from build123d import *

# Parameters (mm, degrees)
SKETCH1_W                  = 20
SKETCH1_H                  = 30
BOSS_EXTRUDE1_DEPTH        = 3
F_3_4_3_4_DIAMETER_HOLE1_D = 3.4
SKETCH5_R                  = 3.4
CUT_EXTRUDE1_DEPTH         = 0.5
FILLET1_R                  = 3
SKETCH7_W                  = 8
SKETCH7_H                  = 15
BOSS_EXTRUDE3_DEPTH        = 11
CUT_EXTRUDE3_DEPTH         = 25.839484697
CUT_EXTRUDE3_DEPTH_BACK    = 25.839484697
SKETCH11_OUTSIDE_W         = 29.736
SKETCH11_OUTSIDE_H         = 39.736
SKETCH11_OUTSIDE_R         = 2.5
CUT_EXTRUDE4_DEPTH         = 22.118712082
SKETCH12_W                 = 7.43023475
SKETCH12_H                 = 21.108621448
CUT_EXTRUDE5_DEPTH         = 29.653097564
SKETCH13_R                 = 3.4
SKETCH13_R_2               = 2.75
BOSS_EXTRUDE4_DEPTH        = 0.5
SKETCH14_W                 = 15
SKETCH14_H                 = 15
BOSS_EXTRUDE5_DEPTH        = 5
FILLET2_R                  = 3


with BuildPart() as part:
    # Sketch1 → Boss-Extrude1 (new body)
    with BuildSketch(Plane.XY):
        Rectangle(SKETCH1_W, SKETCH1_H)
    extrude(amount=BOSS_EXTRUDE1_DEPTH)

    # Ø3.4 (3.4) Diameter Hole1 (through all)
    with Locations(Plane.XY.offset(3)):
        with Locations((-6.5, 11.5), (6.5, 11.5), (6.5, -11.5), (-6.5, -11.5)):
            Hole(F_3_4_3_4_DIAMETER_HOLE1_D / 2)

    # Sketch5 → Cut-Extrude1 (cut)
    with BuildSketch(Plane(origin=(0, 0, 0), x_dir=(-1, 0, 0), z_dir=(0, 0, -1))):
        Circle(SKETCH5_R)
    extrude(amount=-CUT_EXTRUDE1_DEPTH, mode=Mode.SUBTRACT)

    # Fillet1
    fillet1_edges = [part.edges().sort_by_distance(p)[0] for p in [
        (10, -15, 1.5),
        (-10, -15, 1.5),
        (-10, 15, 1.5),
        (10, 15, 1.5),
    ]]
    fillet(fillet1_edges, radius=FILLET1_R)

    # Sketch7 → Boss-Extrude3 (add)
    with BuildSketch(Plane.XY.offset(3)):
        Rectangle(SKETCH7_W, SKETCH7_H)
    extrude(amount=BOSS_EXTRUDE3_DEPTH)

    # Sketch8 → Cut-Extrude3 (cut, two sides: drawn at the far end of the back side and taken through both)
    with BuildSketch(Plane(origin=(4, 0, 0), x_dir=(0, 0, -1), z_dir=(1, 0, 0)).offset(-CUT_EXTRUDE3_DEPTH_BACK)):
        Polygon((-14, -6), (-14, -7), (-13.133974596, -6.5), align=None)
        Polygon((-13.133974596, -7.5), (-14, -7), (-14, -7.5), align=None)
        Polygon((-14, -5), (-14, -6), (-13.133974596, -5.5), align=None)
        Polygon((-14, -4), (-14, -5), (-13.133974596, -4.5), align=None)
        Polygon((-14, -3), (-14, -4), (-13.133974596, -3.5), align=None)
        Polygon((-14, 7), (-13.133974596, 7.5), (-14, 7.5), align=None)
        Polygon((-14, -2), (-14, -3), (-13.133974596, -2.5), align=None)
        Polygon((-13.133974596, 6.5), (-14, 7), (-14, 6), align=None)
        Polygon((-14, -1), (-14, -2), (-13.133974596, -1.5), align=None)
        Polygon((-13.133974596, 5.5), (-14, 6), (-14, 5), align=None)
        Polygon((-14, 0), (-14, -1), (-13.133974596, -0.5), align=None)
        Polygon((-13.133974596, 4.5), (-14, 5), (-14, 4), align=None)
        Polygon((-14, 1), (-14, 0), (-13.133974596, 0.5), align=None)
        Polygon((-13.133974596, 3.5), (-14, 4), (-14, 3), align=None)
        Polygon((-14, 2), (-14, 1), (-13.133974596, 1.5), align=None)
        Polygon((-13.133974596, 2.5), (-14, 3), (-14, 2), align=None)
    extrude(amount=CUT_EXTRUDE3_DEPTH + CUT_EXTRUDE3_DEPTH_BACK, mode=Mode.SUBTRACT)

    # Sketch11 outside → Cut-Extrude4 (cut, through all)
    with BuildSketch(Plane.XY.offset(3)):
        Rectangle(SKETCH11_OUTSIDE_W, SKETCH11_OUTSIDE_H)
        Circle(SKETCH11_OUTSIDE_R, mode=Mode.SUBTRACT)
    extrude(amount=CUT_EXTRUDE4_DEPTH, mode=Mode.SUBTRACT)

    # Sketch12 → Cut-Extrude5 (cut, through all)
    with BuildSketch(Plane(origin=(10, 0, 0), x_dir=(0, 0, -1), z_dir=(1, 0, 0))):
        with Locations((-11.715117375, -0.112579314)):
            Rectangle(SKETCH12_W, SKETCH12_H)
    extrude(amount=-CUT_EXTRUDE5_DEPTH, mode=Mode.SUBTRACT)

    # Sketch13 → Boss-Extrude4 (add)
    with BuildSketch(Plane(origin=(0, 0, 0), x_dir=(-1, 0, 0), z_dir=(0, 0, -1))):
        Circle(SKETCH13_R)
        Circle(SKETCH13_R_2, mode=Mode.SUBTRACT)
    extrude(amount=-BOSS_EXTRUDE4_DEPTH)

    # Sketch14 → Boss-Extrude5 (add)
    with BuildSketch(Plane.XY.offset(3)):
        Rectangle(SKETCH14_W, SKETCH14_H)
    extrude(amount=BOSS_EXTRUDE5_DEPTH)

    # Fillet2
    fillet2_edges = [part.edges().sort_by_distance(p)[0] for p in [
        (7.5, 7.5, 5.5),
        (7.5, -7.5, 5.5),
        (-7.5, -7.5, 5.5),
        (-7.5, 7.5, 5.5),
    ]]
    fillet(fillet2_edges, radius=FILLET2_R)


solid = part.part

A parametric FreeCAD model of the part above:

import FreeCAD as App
import Part
import Sketcher
from FreeCAD import Vector
Q = App.Units.Quantity


def edges_at(feature, points):
    """Names of the edges that pass closest to the given points."""
    edges = feature.Shape.Edges
    near = lambda p: min(range(len(edges)), key=lambda i: edges[i].distToShape(Part.Vertex(*p))[0])
    return sorted({f"Edge{near(p) + 1}" for p in points})

doc = App.newDocument("Part")
body = doc.addObject("PartDesign::Body", "Body")

# Sketch on XY plane
sketch1 = body.newObject("Sketcher::SketchObject", "Sketch")
sketch1.AttachmentSupport = (doc.getObject("XY_Plane"), [""])
sketch1.MapMode = "FlatFace"
sketch1.addGeometry([
    Part.LineSegment(Vector(-10, 15, 0), Vector(-10, -15, 0)),
    Part.LineSegment(Vector(-10, -15, 0), Vector(10, -15, 0)),
    Part.LineSegment(Vector(10, -15, 0), Vector(10, 15, 0)),
    Part.LineSegment(Vector(10, 15, 0), Vector(-10, 15, 0)),
], False)
sketch1.addConstraint([
    Sketcher.Constraint("Coincident", 0, 2, 1, 1),
    Sketcher.Constraint("Coincident", 1, 2, 2, 1),
    Sketcher.Constraint("Coincident", 2, 2, 3, 1),
    Sketcher.Constraint("Coincident", 3, 2, 0, 1),
    Sketcher.Constraint("Vertical", 0),
    Sketcher.Constraint("Horizontal", 1),
    Sketcher.Constraint("Vertical", 2),
    Sketcher.Constraint("Horizontal", 3),
    Sketcher.Constraint("Symmetric", 0, 2, 2, 2, -1, 1),
    Sketcher.Constraint("DistanceX", 1, 1, 1, 2, Q("20 mm")),
    Sketcher.Constraint("DistanceY", 0, 2, 0, 1, Q("30 mm")),
])
pad1 = body.newObject("PartDesign::Pad", "Pad")
pad1.Profile = sketch1
pad1.Length = 3

# Sketch on XY plane
sketch2 = body.newObject("Sketcher::SketchObject", "Sketch001")
sketch2.AttachmentSupport = (doc.getObject("XY_Plane"), [""])
sketch2.MapMode = "FlatFace"
sketch2.AttachmentOffset = App.Placement(Vector(0, 0, 3), App.Rotation())
sketch2.addGeometry([
    Part.Circle(Vector(-6.5, 11.5, 0), Vector(0, 0, 1), 1.7),
    Part.Circle(Vector(6.5, 11.5, 0), Vector(0, 0, 1), 1.7),
    Part.Circle(Vector(6.5, -11.5, 0), Vector(0, 0, 1), 1.7),
    Part.Circle(Vector(-6.5, -11.5, 0), Vector(0, 0, 1), 1.7),
], False)
sketch2.addConstraint([
    Sketcher.Constraint("Equal", 0, 1),
    Sketcher.Constraint("Equal", 1, 2),
    Sketcher.Constraint("Equal", 2, 3),
    Sketcher.Constraint("Symmetric", 0, 3, 2, 3, -1, 1),
    Sketcher.Constraint("Symmetric", 1, 3, 3, 3, -1, 1),
    Sketcher.Constraint("Symmetric", 0, 3, 1, 3, -2),
    Sketcher.Constraint("Diameter", 0, Q("3.4 mm")),
    Sketcher.Constraint("DistanceX", 0, 3, 1, 3, Q("13 mm")),
    Sketcher.Constraint("DistanceY", 2, 3, 1, 3, Q("23 mm")),
])
doc.recompute()
hole = body.newObject("PartDesign::Hole", "Hole")
hole.Profile = sketch2
hole.ThreadType = "None"
hole.Diameter = 3.4
hole.DepthType = "ThroughAll"

# Sketch on XY plane
sketch3 = body.newObject("Sketcher::SketchObject", "Sketch002")
sketch3.AttachmentSupport = (doc.getObject("XY_Plane"), [""])
sketch3.MapMode = "FlatFace"
sketch3.addGeometry(Part.Circle(Vector(0, 0, 0), Vector(0, 0, 1), 3.4), False)
sketch3.addConstraint([
    Sketcher.Constraint("Coincident", 0, 3, -1, 1),
    Sketcher.Constraint("Diameter", 0, Q("6.8 mm")),
])
pocket1 = body.newObject("PartDesign::Pocket", "Pocket")
pocket1.Profile = sketch3
pocket1.Length = 0.5
pocket1.Reversed = True
doc.recompute()

fillet = body.newObject("PartDesign::Fillet", "Fillet")
fillet.Base = (pocket1, edges_at(pocket1, [
    (10, -15, 1.5),
    (-10, -15, 1.5),
    (-10, 15, 1.5),
    (10, 15, 1.5),
]))
fillet.Radius = 3

# Sketch on XY plane
sketch4 = body.newObject("Sketcher::SketchObject", "Sketch003")
sketch4.AttachmentSupport = (doc.getObject("XY_Plane"), [""])
sketch4.MapMode = "FlatFace"
sketch4.AttachmentOffset = App.Placement(Vector(0, 0, 3), App.Rotation())
sketch4.addGeometry([
    Part.LineSegment(Vector(-4, 7.5, 0), Vector(-4, -7.5, 0)),
    Part.LineSegment(Vector(-4, -7.5, 0), Vector(4, -7.5, 0)),
    Part.LineSegment(Vector(4, -7.5, 0), Vector(4, 7.5, 0)),
    Part.LineSegment(Vector(4, 7.5, 0), Vector(-4, 7.5, 0)),
], False)
sketch4.addConstraint([
    Sketcher.Constraint("Coincident", 0, 2, 1, 1),
    Sketcher.Constraint("Coincident", 1, 2, 2, 1),
    Sketcher.Constraint("Coincident", 2, 2, 3, 1),
    Sketcher.Constraint("Coincident", 3, 2, 0, 1),
    Sketcher.Constraint("Vertical", 0),
    Sketcher.Constraint("Horizontal", 1),
    Sketcher.Constraint("Vertical", 2),
    Sketcher.Constraint("Horizontal", 3),
    Sketcher.Constraint("Symmetric", 0, 2, 2, 2, -1, 1),
    Sketcher.Constraint("DistanceX", 1, 1, 1, 2, Q("8 mm")),
    Sketcher.Constraint("DistanceY", 0, 2, 0, 1, Q("15 mm")),
])
pad2 = body.newObject("PartDesign::Pad", "Pad001")
pad2.Profile = sketch4
pad2.Length = 11

# Sketch on YZ plane
sketch5 = body.newObject("Sketcher::SketchObject", "Sketch004")
sketch5.AttachmentSupport = (doc.getObject("YZ_Plane"), [""])
sketch5.MapMode = "FlatFace"
sketch5.AttachmentOffset = App.Placement(Vector(0, 0, 4), App.Rotation())
sketch5.addGeometry([
    Part.LineSegment(Vector(-6, 14, 0), Vector(-7, 14, 0)),  # 0
    Part.LineSegment(Vector(-7, 14, 0), Vector(-6.5, 13.133975, 0)),  # 1
    Part.LineSegment(Vector(-6.5, 13.133975, 0), Vector(-6, 14, 0)),  # 2
    Part.LineSegment(Vector(-7.5, 13.133975, 0), Vector(-7, 14, 0)),  # 3
    Part.LineSegment(Vector(-7, 14, 0), Vector(-7.5, 14, 0)),  # 4
    Part.LineSegment(Vector(-7.5, 14, 0), Vector(-7.5, 13.133975, 0)),  # 5
    Part.LineSegment(Vector(-5, 14, 0), Vector(-6, 14, 0)),  # 6
    Part.LineSegment(Vector(-6, 14, 0), Vector(-5.5, 13.133975, 0)),  # 7
    Part.LineSegment(Vector(-5.5, 13.133975, 0), Vector(-5, 14, 0)),  # 8
    Part.LineSegment(Vector(-4, 14, 0), Vector(-5, 14, 0)),  # 9
    Part.LineSegment(Vector(-5, 14, 0), Vector(-4.5, 13.133975, 0)),  # 10
    Part.LineSegment(Vector(-4.5, 13.133975, 0), Vector(-4, 14, 0)),  # 11
    Part.LineSegment(Vector(-3, 14, 0), Vector(-4, 14, 0)),  # 12
    Part.LineSegment(Vector(-4, 14, 0), Vector(-3.5, 13.133975, 0)),  # 13
    Part.LineSegment(Vector(-3.5, 13.133975, 0), Vector(-3, 14, 0)),  # 14
    Part.LineSegment(Vector(7, 14, 0), Vector(7.5, 13.133975, 0)),  # 15
    Part.LineSegment(Vector(7.5, 13.133975, 0), Vector(7.5, 14, 0)),  # 16
    Part.LineSegment(Vector(7.5, 14, 0), Vector(7, 14, 0)),  # 17
    Part.LineSegment(Vector(-2, 14, 0), Vector(-3, 14, 0)),  # 18
    Part.LineSegment(Vector(-3, 14, 0), Vector(-2.5, 13.133975, 0)),  # 19
    Part.LineSegment(Vector(-2.5, 13.133975, 0), Vector(-2, 14, 0)),  # 20
    Part.LineSegment(Vector(6.5, 13.133975, 0), Vector(7, 14, 0)),  # 21
    Part.LineSegment(Vector(7, 14, 0), Vector(6, 14, 0)),  # 22
    Part.LineSegment(Vector(6, 14, 0), Vector(6.5, 13.133975, 0)),  # 23
    Part.LineSegment(Vector(-1, 14, 0), Vector(-2, 14, 0)),  # 24
    Part.LineSegment(Vector(-2, 14, 0), Vector(-1.5, 13.133975, 0)),  # 25
    Part.LineSegment(Vector(-1.5, 13.133975, 0), Vector(-1, 14, 0)),  # 26
    Part.LineSegment(Vector(5.5, 13.133975, 0), Vector(6, 14, 0)),  # 27
    Part.LineSegment(Vector(6, 14, 0), Vector(5, 14, 0)),  # 28
    Part.LineSegment(Vector(5, 14, 0), Vector(5.5, 13.133975, 0)),  # 29
    Part.LineSegment(Vector(0, 14, 0), Vector(-1, 14, 0)),  # 30
    Part.LineSegment(Vector(-1, 14, 0), Vector(-0.5, 13.133975, 0)),  # 31
    Part.LineSegment(Vector(-0.5, 13.133975, 0), Vector(0, 14, 0)),  # 32
    Part.LineSegment(Vector(4.5, 13.133975, 0), Vector(5, 14, 0)),  # 33
    Part.LineSegment(Vector(5, 14, 0), Vector(4, 14, 0)),  # 34
    Part.LineSegment(Vector(4, 14, 0), Vector(4.5, 13.133975, 0)),  # 35
    Part.LineSegment(Vector(1, 14, 0), Vector(0, 14, 0)),  # 36
    Part.LineSegment(Vector(0, 14, 0), Vector(0.5, 13.133975, 0)),  # 37
    Part.LineSegment(Vector(0.5, 13.133975, 0), Vector(1, 14, 0)),  # 38
    Part.LineSegment(Vector(3.5, 13.133975, 0), Vector(4, 14, 0)),  # 39
    Part.LineSegment(Vector(4, 14, 0), Vector(3, 14, 0)),  # 40
    Part.LineSegment(Vector(3, 14, 0), Vector(3.5, 13.133975, 0)),  # 41
    Part.LineSegment(Vector(2, 14, 0), Vector(1, 14, 0)),  # 42
    Part.LineSegment(Vector(1, 14, 0), Vector(1.5, 13.133975, 0)),  # 43
    Part.LineSegment(Vector(1.5, 13.133975, 0), Vector(2, 14, 0)),  # 44
    Part.LineSegment(Vector(2.5, 13.133975, 0), Vector(3, 14, 0)),  # 45
    Part.LineSegment(Vector(3, 14, 0), Vector(2, 14, 0)),  # 46
    Part.LineSegment(Vector(2, 14, 0), Vector(2.5, 13.133975, 0)),  # 47
], False)
sketch5.addConstraint([
    Sketcher.Constraint("Coincident", 0, 2, 1, 1),
    Sketcher.Constraint("Coincident", 1, 2, 2, 1),
    Sketcher.Constraint("Coincident", 2, 2, 0, 1),
    Sketcher.Constraint("Coincident", 3, 2, 4, 1),
    Sketcher.Constraint("Coincident", 4, 2, 5, 1),
    Sketcher.Constraint("Coincident", 5, 2, 3, 1),
    Sketcher.Constraint("Coincident", 6, 2, 7, 1),
    Sketcher.Constraint("Coincident", 7, 2, 8, 1),
    Sketcher.Constraint("Coincident", 8, 2, 6, 1),
    Sketcher.Constraint("Coincident", 9, 2, 10, 1),
    Sketcher.Constraint("Coincident", 10, 2, 11, 1),
    Sketcher.Constraint("Coincident", 11, 2, 9, 1),
    Sketcher.Constraint("Coincident", 12, 2, 13, 1),
    Sketcher.Constraint("Coincident", 13, 2, 14, 1),
    Sketcher.Constraint("Coincident", 14, 2, 12, 1),
    Sketcher.Constraint("Coincident", 15, 2, 16, 1),
    Sketcher.Constraint("Coincident", 16, 2, 17, 1),
    Sketcher.Constraint("Coincident", 17, 2, 15, 1),
    Sketcher.Constraint("Coincident", 18, 2, 19, 1),
    Sketcher.Constraint("Coincident", 19, 2, 20, 1),
    Sketcher.Constraint("Coincident", 20, 2, 18, 1),
    Sketcher.Constraint("Coincident", 21, 2, 22, 1),
    Sketcher.Constraint("Coincident", 22, 2, 23, 1),
    Sketcher.Constraint("Coincident", 23, 2, 21, 1),
    Sketcher.Constraint("Coincident", 24, 2, 25, 1),
    Sketcher.Constraint("Coincident", 25, 2, 26, 1),
    Sketcher.Constraint("Coincident", 26, 2, 24, 1),
    Sketcher.Constraint("Coincident", 27, 2, 28, 1),
    Sketcher.Constraint("Coincident", 28, 2, 29, 1),
    Sketcher.Constraint("Coincident", 29, 2, 27, 1),
    Sketcher.Constraint("Coincident", 30, 2, 31, 1),
    Sketcher.Constraint("Coincident", 31, 2, 32, 1),
    Sketcher.Constraint("Coincident", 32, 2, 30, 1),
    Sketcher.Constraint("Coincident", 33, 2, 34, 1),
    Sketcher.Constraint("Coincident", 34, 2, 35, 1),
    Sketcher.Constraint("Coincident", 35, 2, 33, 1),
    Sketcher.Constraint("Coincident", 36, 2, 37, 1),
    Sketcher.Constraint("Coincident", 37, 2, 38, 1),
    Sketcher.Constraint("Coincident", 38, 2, 36, 1),
    Sketcher.Constraint("Coincident", 39, 2, 40, 1),
    Sketcher.Constraint("Coincident", 40, 2, 41, 1),
    Sketcher.Constraint("Coincident", 41, 2, 39, 1),
    Sketcher.Constraint("Coincident", 42, 2, 43, 1),
    Sketcher.Constraint("Coincident", 43, 2, 44, 1),
    Sketcher.Constraint("Coincident", 44, 2, 42, 1),
    Sketcher.Constraint("Coincident", 45, 2, 46, 1),
    Sketcher.Constraint("Coincident", 46, 2, 47, 1),
    Sketcher.Constraint("Coincident", 47, 2, 45, 1),
    Sketcher.Constraint("Horizontal", 0),
    Sketcher.Constraint("Horizontal", 4),
    Sketcher.Constraint("Vertical", 5),
    Sketcher.Constraint("Horizontal", 6),
    Sketcher.Constraint("Horizontal", 9),
    Sketcher.Constraint("Horizontal", 12),
    Sketcher.Constraint("Vertical", 16),
    Sketcher.Constraint("Horizontal", 17),
    Sketcher.Constraint("Horizontal", 18),
    Sketcher.Constraint("Horizontal", 22),
    Sketcher.Constraint("Horizontal", 24),
    Sketcher.Constraint("Horizontal", 28),
    Sketcher.Constraint("Horizontal", 30),
    Sketcher.Constraint("Horizontal", 34),
    Sketcher.Constraint("Horizontal", 36),
    Sketcher.Constraint("Horizontal", 40),
    Sketcher.Constraint("Horizontal", 42),
    Sketcher.Constraint("Horizontal", 46),
    Sketcher.Constraint("Coincident", 3, 2, 0, 2),
    Sketcher.Constraint("Coincident", 6, 2, 2, 2),
    Sketcher.Constraint("Coincident", 9, 2, 8, 2),
    Sketcher.Constraint("Coincident", 12, 2, 11, 2),
    Sketcher.Constraint("Coincident", 18, 2, 14, 2),
    Sketcher.Constraint("Coincident", 21, 2, 17, 2),
    Sketcher.Constraint("Coincident", 24, 2, 20, 2),
    Sketcher.Constraint("Coincident", 27, 2, 22, 2),
    Sketcher.Constraint("Coincident", 30, 2, 26, 2),
    Sketcher.Constraint("Coincident", 33, 2, 28, 2),
    Sketcher.Constraint("Coincident", 36, 2, 32, 2),
    Sketcher.Constraint("Coincident", 39, 2, 34, 2),
    Sketcher.Constraint("Coincident", 42, 2, 38, 2),
    Sketcher.Constraint("Coincident", 45, 2, 40, 2),
    Sketcher.Constraint("Coincident", 46, 2, 44, 2),
    Sketcher.Constraint("Symmetric", 5, 2, 15, 2, -2),
    Sketcher.Constraint("Symmetric", 1, 2, 23, 2, -2),
    Sketcher.Constraint("Symmetric", 7, 2, 29, 2, -2),
    Sketcher.Constraint("Symmetric", 10, 2, 35, 2, -2),
    Sketcher.Constraint("Symmetric", 31, 2, 37, 2, -2),
    Sketcher.Constraint("Symmetric", 13, 2, 41, 2, -2),
    Sketcher.Constraint("Symmetric", 25, 2, 43, 2, -2),
    Sketcher.Constraint("Symmetric", 19, 2, 47, 2, -2),
    Sketcher.Constraint("PointOnObject", 32, 2, -2),
    Sketcher.Constraint("Parallel", 2, 3),
    Sketcher.Constraint("Parallel", 1, 7),
    Sketcher.Constraint("Parallel", 3, 8),
    Sketcher.Constraint("Parallel", 7, 10),
    Sketcher.Constraint("Parallel", 8, 11),
    Sketcher.Constraint("Parallel", 10, 13),
    Sketcher.Constraint("Parallel", 11, 14),
    Sketcher.Constraint("Parallel", 13, 15),
    Sketcher.Constraint("Parallel", 15, 19),
    Sketcher.Constraint("Parallel", 14, 20),
    Sketcher.Constraint("Parallel", 19, 23),
    Sketcher.Constraint("Parallel", 23, 25),
    Sketcher.Constraint("Parallel", 21, 26),
    Sketcher.Constraint("Parallel", 25, 29),
    Sketcher.Constraint("Parallel", 29, 31),
    Sketcher.Constraint("Parallel", 27, 32),
    Sketcher.Constraint("Parallel", 31, 35),
    Sketcher.Constraint("Parallel", 35, 37),
    Sketcher.Constraint("Parallel", 33, 38),
    Sketcher.Constraint("Parallel", 37, 41),
    Sketcher.Constraint("Parallel", 39, 44),
    Sketcher.Constraint("Horizontal", 1, 2, 5, 2),
    Sketcher.Constraint("Horizontal", 5, 2, 7, 2),
    Sketcher.Constraint("Horizontal", 7, 2, 10, 2),
    Sketcher.Constraint("Horizontal", 10, 2, 13, 2),
    Sketcher.Constraint("Horizontal", 15, 2, 19, 2),
    Sketcher.Constraint("Horizontal", 23, 2, 25, 2),
    Sketcher.Constraint("Horizontal", 29, 2, 31, 2),
    Sketcher.Constraint("DistanceX", 0, 2, 0, 1, Q("1 mm")),
    Sketcher.Constraint("Angle", 1, Q("-60 deg")),
    Sketcher.Constraint("DistanceY", -1, 1, 0, 2, Q("14 mm")),
])
pocket2 = body.newObject("PartDesign::Pocket", "Pocket001")
pocket2.Profile = sketch5
pocket2.Type = "ThroughAll"
pocket2.Midplane = True

# Sketch on XY plane
sketch6 = body.newObject("Sketcher::SketchObject", "Sketch005")
sketch6.AttachmentSupport = (doc.getObject("XY_Plane"), [""])
sketch6.MapMode = "FlatFace"
sketch6.AttachmentOffset = App.Placement(Vector(0, 0, 3), App.Rotation())
sketch6.addGeometry([
    Part.LineSegment(Vector(-14.868, 19.868, 0), Vector(-14.868, -19.868, 0)),  # 0
    Part.LineSegment(Vector(-14.868, -19.868, 0), Vector(14.868, -19.868, 0)),  # 1
    Part.LineSegment(Vector(14.868, -19.868, 0), Vector(14.868, 19.868, 0)),  # 2
    Part.LineSegment(Vector(14.868, 19.868, 0), Vector(-14.868, 19.868, 0)),  # 3
    Part.Circle(Vector(0, 0, 0), Vector(0, 0, 1), 2.5),  # 4
], False)
sketch6.addConstraint([
    Sketcher.Constraint("Coincident", 0, 2, 1, 1),
    Sketcher.Constraint("Coincident", 1, 2, 2, 1),
    Sketcher.Constraint("Coincident", 2, 2, 3, 1),
    Sketcher.Constraint("Coincident", 3, 2, 0, 1),
    Sketcher.Constraint("Vertical", 0),
    Sketcher.Constraint("Horizontal", 1),
    Sketcher.Constraint("Vertical", 2),
    Sketcher.Constraint("Horizontal", 3),
    Sketcher.Constraint("Coincident", 4, 3, -1, 1),
    Sketcher.Constraint("Symmetric", 0, 2, 2, 2, -1, 1),
    Sketcher.Constraint("Diameter", 4, Q("5 mm")),
    Sketcher.Constraint("DistanceX", 1, 1, 1, 2, Q("29.736 mm")),
    Sketcher.Constraint("DistanceY", 0, 2, 0, 1, Q("39.736 mm")),
])
pocket3 = body.newObject("PartDesign::Pocket", "Pocket002")
pocket3.Profile = sketch6
pocket3.Type = "ThroughAll"
pocket3.Reversed = True

# Sketch on YZ plane
sketch7 = body.newObject("Sketcher::SketchObject", "Sketch006")
sketch7.AttachmentSupport = (doc.getObject("YZ_Plane"), [""])
sketch7.MapMode = "FlatFace"
sketch7.AttachmentOffset = App.Placement(Vector(0, 0, 10), App.Rotation())
sketch7.addGeometry([
    Part.LineSegment(Vector(10.441731, 15.430235, 0), Vector(-10.66689, 15.430235, 0)),
    Part.LineSegment(Vector(-10.66689, 15.430235, 0), Vector(-10.66689, 8, 0)),
    Part.LineSegment(Vector(-10.66689, 8, 0), Vector(10.441731, 8, 0)),
    Part.LineSegment(Vector(10.441731, 8, 0), Vector(10.441731, 15.430235, 0)),
], False)
sketch7.addConstraint([
    Sketcher.Constraint("Coincident", 0, 2, 1, 1),
    Sketcher.Constraint("Coincident", 1, 2, 2, 1),
    Sketcher.Constraint("Coincident", 2, 2, 3, 1),
    Sketcher.Constraint("Coincident", 3, 2, 0, 1),
    Sketcher.Constraint("Horizontal", 0),
    Sketcher.Constraint("Vertical", 1),
    Sketcher.Constraint("Horizontal", 2),
    Sketcher.Constraint("Vertical", 3),
    Sketcher.Constraint("DistanceY", -1, 1, 1, 2, Q("8 mm")),
    Sketcher.Constraint("DistanceX", 0, 2, 0, 1, Q("21.108621 mm")),
    Sketcher.Constraint("DistanceY", 1, 2, 1, 1, Q("7.430235 mm")),
    Sketcher.Constraint("DistanceX", 0, 2, -1, 1, Q("10.66689 mm")),
])
pocket4 = body.newObject("PartDesign::Pocket", "Pocket003")
pocket4.Profile = sketch7
pocket4.Type = "ThroughAll"

# Sketch on XY plane
sketch8 = body.newObject("Sketcher::SketchObject", "Sketch007")
sketch8.AttachmentSupport = (doc.getObject("XY_Plane"), [""])
sketch8.MapMode = "FlatFace"
sketch8.addGeometry([
    Part.Circle(Vector(0, 0, 0), Vector(0, 0, 1), 3.4),
    Part.Circle(Vector(0, 0, 0), Vector(0, 0, 1), 2.75),
], False)
sketch8.addConstraint([
    Sketcher.Constraint("Coincident", 0, 3, -1, 1),
    Sketcher.Constraint("Coincident", 1, 3, -1, 1),
    Sketcher.Constraint("Diameter", 0, Q("6.8 mm")),
    Sketcher.Constraint("Diameter", 1, Q("5.5 mm")),
])
pad3 = body.newObject("PartDesign::Pad", "Pad002")
pad3.Profile = sketch8
pad3.Length = 0.5

# Sketch on XY plane
sketch9 = body.newObject("Sketcher::SketchObject", "Sketch008")
sketch9.AttachmentSupport = (doc.getObject("XY_Plane"), [""])
sketch9.MapMode = "FlatFace"
sketch9.AttachmentOffset = App.Placement(Vector(0, 0, 3), App.Rotation())
sketch9.addGeometry([
    Part.LineSegment(Vector(-7.5, 7.5, 0), Vector(-7.5, -7.5, 0)),
    Part.LineSegment(Vector(-7.5, -7.5, 0), Vector(7.5, -7.5, 0)),
    Part.LineSegment(Vector(7.5, -7.5, 0), Vector(7.5, 7.5, 0)),
    Part.LineSegment(Vector(7.5, 7.5, 0), Vector(-7.5, 7.5, 0)),
], False)
sketch9.addConstraint([
    Sketcher.Constraint("Coincident", 0, 2, 1, 1),
    Sketcher.Constraint("Coincident", 1, 2, 2, 1),
    Sketcher.Constraint("Coincident", 2, 2, 3, 1),
    Sketcher.Constraint("Coincident", 3, 2, 0, 1),
    Sketcher.Constraint("Vertical", 0),
    Sketcher.Constraint("Horizontal", 1),
    Sketcher.Constraint("Vertical", 2),
    Sketcher.Constraint("Horizontal", 3),
    Sketcher.Constraint("Symmetric", 0, 2, 2, 2, -1, 1),
    Sketcher.Constraint("Equal", 3, 0),
    Sketcher.Constraint("DistanceX", 1, 1, 1, 2, Q("15 mm")),
])
pad4 = body.newObject("PartDesign::Pad", "Pad003")
pad4.Profile = sketch9
pad4.Length = 5
doc.recompute()

fillet2 = body.newObject("PartDesign::Fillet", "Fillet001")
fillet2.Base = (pad4, edges_at(pad4, [
    (7.5, 7.5, 5.5),
    (7.5, -7.5, 5.5),
    (-7.5, -7.5, 5.5),
    (-7.5, 7.5, 5.5),
]))
fillet2.Radius = 3

doc.recompute()
